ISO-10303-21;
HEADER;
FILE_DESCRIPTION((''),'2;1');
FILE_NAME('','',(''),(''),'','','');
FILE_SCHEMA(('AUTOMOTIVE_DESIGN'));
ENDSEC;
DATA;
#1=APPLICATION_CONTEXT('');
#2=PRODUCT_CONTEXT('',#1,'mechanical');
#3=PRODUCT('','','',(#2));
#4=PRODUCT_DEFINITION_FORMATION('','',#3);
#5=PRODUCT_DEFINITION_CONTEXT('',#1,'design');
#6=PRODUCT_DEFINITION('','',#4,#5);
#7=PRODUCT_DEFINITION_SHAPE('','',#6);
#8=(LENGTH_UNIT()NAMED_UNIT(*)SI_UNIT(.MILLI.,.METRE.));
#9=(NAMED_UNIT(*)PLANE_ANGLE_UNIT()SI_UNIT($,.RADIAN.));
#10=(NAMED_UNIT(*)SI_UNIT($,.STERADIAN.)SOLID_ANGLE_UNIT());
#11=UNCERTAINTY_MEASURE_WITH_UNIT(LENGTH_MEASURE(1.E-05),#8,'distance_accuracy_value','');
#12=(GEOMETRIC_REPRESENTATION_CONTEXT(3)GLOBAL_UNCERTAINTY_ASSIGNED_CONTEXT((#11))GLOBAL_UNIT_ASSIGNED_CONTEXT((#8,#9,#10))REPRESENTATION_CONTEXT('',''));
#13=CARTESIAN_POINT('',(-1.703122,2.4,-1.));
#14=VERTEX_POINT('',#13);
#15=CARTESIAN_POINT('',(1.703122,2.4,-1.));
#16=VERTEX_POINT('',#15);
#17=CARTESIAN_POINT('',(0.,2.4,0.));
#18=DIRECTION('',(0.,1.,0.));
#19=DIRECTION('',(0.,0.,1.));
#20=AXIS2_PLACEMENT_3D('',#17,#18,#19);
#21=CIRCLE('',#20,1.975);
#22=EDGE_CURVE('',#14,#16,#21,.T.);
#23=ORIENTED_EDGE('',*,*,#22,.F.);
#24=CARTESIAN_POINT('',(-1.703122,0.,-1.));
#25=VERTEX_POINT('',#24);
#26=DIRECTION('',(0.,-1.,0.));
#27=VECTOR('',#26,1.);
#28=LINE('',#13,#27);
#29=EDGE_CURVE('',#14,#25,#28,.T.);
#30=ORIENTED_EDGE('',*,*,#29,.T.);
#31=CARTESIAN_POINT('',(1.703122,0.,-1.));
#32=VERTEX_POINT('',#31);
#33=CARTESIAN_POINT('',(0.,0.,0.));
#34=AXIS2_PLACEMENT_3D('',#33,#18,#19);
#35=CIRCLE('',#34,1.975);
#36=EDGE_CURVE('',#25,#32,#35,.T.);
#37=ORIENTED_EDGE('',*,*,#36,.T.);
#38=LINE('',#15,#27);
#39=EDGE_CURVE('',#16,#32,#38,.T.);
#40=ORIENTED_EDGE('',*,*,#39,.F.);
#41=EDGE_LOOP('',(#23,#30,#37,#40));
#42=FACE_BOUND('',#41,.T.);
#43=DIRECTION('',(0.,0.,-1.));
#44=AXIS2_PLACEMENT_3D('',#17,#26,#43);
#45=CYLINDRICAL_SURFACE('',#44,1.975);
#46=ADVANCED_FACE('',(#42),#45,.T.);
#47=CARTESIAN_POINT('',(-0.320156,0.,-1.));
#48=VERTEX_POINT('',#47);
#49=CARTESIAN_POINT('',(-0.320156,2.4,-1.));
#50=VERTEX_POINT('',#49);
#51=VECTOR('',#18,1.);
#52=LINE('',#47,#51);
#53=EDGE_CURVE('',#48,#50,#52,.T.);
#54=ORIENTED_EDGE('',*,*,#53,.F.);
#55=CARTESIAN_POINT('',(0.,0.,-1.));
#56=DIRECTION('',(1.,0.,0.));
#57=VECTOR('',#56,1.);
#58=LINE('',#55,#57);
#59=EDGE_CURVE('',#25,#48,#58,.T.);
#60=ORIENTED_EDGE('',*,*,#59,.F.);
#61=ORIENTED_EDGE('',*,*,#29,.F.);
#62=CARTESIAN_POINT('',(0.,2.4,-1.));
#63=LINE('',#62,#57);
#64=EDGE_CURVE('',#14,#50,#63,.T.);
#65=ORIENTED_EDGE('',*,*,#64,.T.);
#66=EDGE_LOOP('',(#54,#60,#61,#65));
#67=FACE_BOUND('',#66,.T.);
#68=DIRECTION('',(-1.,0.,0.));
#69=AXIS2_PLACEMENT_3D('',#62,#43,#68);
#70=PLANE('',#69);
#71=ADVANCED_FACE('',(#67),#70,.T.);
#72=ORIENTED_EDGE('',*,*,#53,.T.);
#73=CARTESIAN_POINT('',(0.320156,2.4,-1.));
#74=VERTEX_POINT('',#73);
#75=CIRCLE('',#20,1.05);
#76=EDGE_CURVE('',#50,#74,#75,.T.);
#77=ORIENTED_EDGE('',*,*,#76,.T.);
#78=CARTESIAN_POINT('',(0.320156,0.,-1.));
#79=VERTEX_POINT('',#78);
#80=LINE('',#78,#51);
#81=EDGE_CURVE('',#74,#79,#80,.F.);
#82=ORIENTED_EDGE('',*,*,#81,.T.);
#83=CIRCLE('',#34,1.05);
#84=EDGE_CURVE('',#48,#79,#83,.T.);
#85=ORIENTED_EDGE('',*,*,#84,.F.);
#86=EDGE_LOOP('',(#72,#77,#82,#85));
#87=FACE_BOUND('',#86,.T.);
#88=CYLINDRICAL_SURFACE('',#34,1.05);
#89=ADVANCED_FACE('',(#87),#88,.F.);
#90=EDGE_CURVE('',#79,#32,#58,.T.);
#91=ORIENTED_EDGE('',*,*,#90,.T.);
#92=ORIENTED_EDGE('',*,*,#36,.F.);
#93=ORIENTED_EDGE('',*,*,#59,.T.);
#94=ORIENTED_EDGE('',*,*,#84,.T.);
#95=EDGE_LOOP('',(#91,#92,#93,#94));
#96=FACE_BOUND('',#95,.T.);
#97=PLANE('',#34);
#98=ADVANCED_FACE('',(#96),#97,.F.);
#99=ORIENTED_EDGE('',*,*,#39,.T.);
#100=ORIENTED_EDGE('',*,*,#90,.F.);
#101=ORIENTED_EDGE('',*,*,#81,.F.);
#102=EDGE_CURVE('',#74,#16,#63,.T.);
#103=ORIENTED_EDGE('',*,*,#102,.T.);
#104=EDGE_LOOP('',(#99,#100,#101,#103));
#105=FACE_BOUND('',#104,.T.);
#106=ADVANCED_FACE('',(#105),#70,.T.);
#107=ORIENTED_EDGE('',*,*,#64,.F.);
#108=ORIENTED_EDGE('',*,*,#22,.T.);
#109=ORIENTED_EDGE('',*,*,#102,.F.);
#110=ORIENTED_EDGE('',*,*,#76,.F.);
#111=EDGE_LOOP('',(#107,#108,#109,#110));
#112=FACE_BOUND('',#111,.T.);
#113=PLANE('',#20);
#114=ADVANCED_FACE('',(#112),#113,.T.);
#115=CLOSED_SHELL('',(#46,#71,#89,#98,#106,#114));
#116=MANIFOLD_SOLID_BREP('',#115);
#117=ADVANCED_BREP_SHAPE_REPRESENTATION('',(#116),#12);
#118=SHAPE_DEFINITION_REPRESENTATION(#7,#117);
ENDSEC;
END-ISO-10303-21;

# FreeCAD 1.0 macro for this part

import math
import FreeCAD as App
import Part
import Sketcher

doc = App.newDocument("Part")
body = doc.addObject("PartDesign::Body", "Body")

# Sketch on XZ plane
sketch1 = body.newObject("Sketcher::SketchObject", "Sketch")
sketch1.AttachmentSupport = (doc.getObject("XZ_Plane"), [""])
sketch1.MapMode = "FlatFace"
sketch1.addGeometry(Part.LineSegment(App.Vector(1.703122, -1, 0), App.Vector(-1.703122, -1, 0)), False)
sketch1.addGeometry(Part.ArcOfCircle(Part.Circle(App.Vector(0, 0, 0), App.Vector(0, 0, 1), 1.975), math.radians(0), math.radians(210.419622)), False)
sketch1.addGeometry(Part.ArcOfCircle(Part.Circle(App.Vector(0, 0, 0), App.Vector(0, 0, 1), 1.975), math.radians(-30.419622), math.radians(0)), False)
sketch1.addConstraint(Sketcher.Constraint("Coincident", 0, 2, 1, 2))
sketch1.addConstraint(Sketcher.Constraint("Tangent", 1, 1, 2, 2))
sketch1.addConstraint(Sketcher.Constraint("Coincident", 2, 1, 0, 1))
sketch1.addConstraint(Sketcher.Constraint("Horizontal", 0))
sketch1.addConstraint(Sketcher.Constraint("Coincident", 1, 3, -1, 1))
sketch1.addConstraint(Sketcher.Constraint("Equal", 1, 2))
sketch1.addConstraint(Sketcher.Constraint("PointOnObject", 1, 1, -1))
sketch1.addConstraint(Sketcher.Constraint("DistanceY", 0, 2, -1, 1, 1.0))
sketch1.addConstraint(Sketcher.Constraint("Radius", 1, 1.975))
pad1 = body.newObject("PartDesign::Pad", "Pad")
pad1.Profile = sketch1
pad1.Length = 2.4
pad1.Reversed = True

# Sketch on XZ plane
sketch2 = body.newObject("Sketcher::SketchObject", "Sketch001")
sketch2.AttachmentSupport = (doc.getObject("XZ_Plane"), [""])
sketch2.MapMode = "FlatFace"
sketch2.AttachmentOffset = App.Placement(App.Vector(0, 0, -2.4), App.Rotation())
sketch2.addGeometry(Part.Circle(App.Vector(0, 0, 0), App.Vector(0, 0, 1), 1.05), False)
sketch2.addConstraint(Sketcher.Constraint("Coincident", 0, 3, -1, 1))
sketch2.addConstraint(Sketcher.Constraint("Diameter", 0, 2.1))
pocket1 = body.newObject("PartDesign::Pocket", "Pocket")
pocket1.Profile = sketch2
pocket1.Type = "ThroughAll"
pocket1.Reversed = True

doc.recompute()
